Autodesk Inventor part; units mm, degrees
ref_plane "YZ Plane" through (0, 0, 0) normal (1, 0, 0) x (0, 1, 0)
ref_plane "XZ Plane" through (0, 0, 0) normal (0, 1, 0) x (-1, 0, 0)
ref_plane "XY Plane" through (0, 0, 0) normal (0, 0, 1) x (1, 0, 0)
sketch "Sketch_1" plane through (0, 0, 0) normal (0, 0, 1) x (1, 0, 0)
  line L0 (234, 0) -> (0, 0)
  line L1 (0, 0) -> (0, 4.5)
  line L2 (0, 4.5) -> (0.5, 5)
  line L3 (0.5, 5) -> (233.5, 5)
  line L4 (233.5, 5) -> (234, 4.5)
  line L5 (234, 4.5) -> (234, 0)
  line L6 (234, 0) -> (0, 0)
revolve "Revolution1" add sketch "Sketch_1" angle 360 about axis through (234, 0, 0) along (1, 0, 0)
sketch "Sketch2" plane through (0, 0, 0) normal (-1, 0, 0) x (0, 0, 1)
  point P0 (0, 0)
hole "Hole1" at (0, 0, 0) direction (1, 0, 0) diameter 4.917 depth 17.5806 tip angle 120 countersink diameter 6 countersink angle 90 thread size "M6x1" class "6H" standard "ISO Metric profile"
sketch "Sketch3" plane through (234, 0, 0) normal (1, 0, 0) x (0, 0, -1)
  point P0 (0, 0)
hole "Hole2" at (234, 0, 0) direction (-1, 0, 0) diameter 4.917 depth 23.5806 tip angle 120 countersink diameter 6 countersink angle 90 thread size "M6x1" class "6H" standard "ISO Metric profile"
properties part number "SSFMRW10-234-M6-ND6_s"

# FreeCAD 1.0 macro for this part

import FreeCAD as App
import Part
import Sketcher
from FreeCAD import Vector

doc = App.newDocument("Part")
body = doc.addObject("PartDesign::Body", "Body")

# Sketch on XY plane
sketch1 = body.newObject("Sketcher::SketchObject", "Sketch")
sketch1.AttachmentSupport = (doc.getObject("XY_Plane"), [""])
sketch1.MapMode = "FlatFace"
sketch1.addGeometry([
    Part.LineSegment(Vector(0, 0, 0), Vector(234, 0, 0)),  # 0
    Part.LineSegment(Vector(234, 0, 0), Vector(234, 4.5, 0)),  # 1
    Part.LineSegment(Vector(234, 4.5, 0), Vector(233.5, 5, 0)),  # 2
    Part.LineSegment(Vector(233.5, 5, 0), Vector(0.5, 5, 0)),  # 3
    Part.LineSegment(Vector(0.5, 5, 0), Vector(0, 4.5, 0)),  # 4
    Part.LineSegment(Vector(0, 4.5, 0), Vector(0, 0, 0)),  # 5
], False)
sketch1.addConstraint([
    Sketcher.Constraint("Coincident", 0, 2, 1, 1),
    Sketcher.Constraint("Coincident", 1, 2, 2, 1),
    Sketcher.Constraint("Coincident", 2, 2, 3, 1),
    Sketcher.Constraint("Coincident", 3, 2, 4, 1),
    Sketcher.Constraint("Coincident", 4, 2, 5, 1),
    Sketcher.Constraint("Coincident", 5, 2, 0, 1),
    Sketcher.Constraint("Horizontal", 0),
    Sketcher.Constraint("Vertical", 1),
    Sketcher.Constraint("Horizontal", 3),
    Sketcher.Constraint("Vertical", 5),
    Sketcher.Constraint("Coincident", 5, 2, -1, 1),
    Sketcher.Constraint("Perpendicular", 2, 4),
    Sketcher.Constraint("Horizontal", 1, 2, 4, 2),
    Sketcher.Constraint("Equal", 2, 4),
    Sketcher.Constraint("DistanceX", 0, 1, 0, 2, 234.0),
    Sketcher.Constraint("DistanceX", 3, 2, 3, 1, 233.0),
    Sketcher.Constraint("DistanceY", 1, 1, 1, 2, 4.5),
])
revolution = body.newObject("PartDesign::Revolution", "Revolution")
revolution.Profile = sketch1
revolution.ReferenceAxis = (sketch1, ["H_Axis"])
revolution.Angle = 360

# Sketch on YZ plane
sketch2 = body.newObject("Sketcher::SketchObject", "Sketch001")
sketch2.AttachmentSupport = (doc.getObject("YZ_Plane"), [""])
sketch2.MapMode = "FlatFace"
sketch2.addGeometry(Part.Circle(Vector(0, 0, 0), Vector(0, 0, 1), 2.5), False)
sketch2.addConstraint([
    Sketcher.Constraint("Coincident", 0, 3, -1, 1),
    Sketcher.Constraint("Diameter", 0, 4.917),
])
doc.recompute()
hole = body.newObject("PartDesign::Hole", "Hole")
hole.Profile = sketch2
hole.ThreadType = "None"
hole.Diameter = 4.917
hole.DepthType = "Dimension"
hole.Depth = 17.5806
hole.DrillPoint = "Angled"
hole.DrillPointAngle = 120
hole.HoleCutType = "Countersink"
hole.HoleCutDiameter = 6
hole.HoleCutCountersinkAngle = 90
hole.Reversed = True

# Sketch on YZ plane
sketch3 = body.newObject("Sketcher::SketchObject", "Sketch002")
sketch3.AttachmentSupport = (doc.getObject("YZ_Plane"), [""])
sketch3.MapMode = "FlatFace"
sketch3.AttachmentOffset = App.Placement(Vector(0, 0, 234), App.Rotation())
sketch3.addGeometry(Part.Circle(Vector(0, 0, 0), Vector(0, 0, 1), 2.5), False)
sketch3.addConstraint([
    Sketcher.Constraint("Coincident", 0, 3, -1, 1),
    Sketcher.Constraint("Diameter", 0, 4.917),
])
doc.recompute()
hole2 = body.newObject("PartDesign::Hole", "Hole001")
hole2.Profile = sketch3
hole2.ThreadType = "None"
hole2.Diameter = 4.917
hole2.DepthType = "Dimension"
hole2.Depth = 23.5806
hole2.DrillPoint = "Angled"
hole2.DrillPointAngle = 120
hole2.HoleCutType = "Countersink"
hole2.HoleCutDiameter = 6
hole2.HoleCutCountersinkAngle = 90

doc.recompute()
